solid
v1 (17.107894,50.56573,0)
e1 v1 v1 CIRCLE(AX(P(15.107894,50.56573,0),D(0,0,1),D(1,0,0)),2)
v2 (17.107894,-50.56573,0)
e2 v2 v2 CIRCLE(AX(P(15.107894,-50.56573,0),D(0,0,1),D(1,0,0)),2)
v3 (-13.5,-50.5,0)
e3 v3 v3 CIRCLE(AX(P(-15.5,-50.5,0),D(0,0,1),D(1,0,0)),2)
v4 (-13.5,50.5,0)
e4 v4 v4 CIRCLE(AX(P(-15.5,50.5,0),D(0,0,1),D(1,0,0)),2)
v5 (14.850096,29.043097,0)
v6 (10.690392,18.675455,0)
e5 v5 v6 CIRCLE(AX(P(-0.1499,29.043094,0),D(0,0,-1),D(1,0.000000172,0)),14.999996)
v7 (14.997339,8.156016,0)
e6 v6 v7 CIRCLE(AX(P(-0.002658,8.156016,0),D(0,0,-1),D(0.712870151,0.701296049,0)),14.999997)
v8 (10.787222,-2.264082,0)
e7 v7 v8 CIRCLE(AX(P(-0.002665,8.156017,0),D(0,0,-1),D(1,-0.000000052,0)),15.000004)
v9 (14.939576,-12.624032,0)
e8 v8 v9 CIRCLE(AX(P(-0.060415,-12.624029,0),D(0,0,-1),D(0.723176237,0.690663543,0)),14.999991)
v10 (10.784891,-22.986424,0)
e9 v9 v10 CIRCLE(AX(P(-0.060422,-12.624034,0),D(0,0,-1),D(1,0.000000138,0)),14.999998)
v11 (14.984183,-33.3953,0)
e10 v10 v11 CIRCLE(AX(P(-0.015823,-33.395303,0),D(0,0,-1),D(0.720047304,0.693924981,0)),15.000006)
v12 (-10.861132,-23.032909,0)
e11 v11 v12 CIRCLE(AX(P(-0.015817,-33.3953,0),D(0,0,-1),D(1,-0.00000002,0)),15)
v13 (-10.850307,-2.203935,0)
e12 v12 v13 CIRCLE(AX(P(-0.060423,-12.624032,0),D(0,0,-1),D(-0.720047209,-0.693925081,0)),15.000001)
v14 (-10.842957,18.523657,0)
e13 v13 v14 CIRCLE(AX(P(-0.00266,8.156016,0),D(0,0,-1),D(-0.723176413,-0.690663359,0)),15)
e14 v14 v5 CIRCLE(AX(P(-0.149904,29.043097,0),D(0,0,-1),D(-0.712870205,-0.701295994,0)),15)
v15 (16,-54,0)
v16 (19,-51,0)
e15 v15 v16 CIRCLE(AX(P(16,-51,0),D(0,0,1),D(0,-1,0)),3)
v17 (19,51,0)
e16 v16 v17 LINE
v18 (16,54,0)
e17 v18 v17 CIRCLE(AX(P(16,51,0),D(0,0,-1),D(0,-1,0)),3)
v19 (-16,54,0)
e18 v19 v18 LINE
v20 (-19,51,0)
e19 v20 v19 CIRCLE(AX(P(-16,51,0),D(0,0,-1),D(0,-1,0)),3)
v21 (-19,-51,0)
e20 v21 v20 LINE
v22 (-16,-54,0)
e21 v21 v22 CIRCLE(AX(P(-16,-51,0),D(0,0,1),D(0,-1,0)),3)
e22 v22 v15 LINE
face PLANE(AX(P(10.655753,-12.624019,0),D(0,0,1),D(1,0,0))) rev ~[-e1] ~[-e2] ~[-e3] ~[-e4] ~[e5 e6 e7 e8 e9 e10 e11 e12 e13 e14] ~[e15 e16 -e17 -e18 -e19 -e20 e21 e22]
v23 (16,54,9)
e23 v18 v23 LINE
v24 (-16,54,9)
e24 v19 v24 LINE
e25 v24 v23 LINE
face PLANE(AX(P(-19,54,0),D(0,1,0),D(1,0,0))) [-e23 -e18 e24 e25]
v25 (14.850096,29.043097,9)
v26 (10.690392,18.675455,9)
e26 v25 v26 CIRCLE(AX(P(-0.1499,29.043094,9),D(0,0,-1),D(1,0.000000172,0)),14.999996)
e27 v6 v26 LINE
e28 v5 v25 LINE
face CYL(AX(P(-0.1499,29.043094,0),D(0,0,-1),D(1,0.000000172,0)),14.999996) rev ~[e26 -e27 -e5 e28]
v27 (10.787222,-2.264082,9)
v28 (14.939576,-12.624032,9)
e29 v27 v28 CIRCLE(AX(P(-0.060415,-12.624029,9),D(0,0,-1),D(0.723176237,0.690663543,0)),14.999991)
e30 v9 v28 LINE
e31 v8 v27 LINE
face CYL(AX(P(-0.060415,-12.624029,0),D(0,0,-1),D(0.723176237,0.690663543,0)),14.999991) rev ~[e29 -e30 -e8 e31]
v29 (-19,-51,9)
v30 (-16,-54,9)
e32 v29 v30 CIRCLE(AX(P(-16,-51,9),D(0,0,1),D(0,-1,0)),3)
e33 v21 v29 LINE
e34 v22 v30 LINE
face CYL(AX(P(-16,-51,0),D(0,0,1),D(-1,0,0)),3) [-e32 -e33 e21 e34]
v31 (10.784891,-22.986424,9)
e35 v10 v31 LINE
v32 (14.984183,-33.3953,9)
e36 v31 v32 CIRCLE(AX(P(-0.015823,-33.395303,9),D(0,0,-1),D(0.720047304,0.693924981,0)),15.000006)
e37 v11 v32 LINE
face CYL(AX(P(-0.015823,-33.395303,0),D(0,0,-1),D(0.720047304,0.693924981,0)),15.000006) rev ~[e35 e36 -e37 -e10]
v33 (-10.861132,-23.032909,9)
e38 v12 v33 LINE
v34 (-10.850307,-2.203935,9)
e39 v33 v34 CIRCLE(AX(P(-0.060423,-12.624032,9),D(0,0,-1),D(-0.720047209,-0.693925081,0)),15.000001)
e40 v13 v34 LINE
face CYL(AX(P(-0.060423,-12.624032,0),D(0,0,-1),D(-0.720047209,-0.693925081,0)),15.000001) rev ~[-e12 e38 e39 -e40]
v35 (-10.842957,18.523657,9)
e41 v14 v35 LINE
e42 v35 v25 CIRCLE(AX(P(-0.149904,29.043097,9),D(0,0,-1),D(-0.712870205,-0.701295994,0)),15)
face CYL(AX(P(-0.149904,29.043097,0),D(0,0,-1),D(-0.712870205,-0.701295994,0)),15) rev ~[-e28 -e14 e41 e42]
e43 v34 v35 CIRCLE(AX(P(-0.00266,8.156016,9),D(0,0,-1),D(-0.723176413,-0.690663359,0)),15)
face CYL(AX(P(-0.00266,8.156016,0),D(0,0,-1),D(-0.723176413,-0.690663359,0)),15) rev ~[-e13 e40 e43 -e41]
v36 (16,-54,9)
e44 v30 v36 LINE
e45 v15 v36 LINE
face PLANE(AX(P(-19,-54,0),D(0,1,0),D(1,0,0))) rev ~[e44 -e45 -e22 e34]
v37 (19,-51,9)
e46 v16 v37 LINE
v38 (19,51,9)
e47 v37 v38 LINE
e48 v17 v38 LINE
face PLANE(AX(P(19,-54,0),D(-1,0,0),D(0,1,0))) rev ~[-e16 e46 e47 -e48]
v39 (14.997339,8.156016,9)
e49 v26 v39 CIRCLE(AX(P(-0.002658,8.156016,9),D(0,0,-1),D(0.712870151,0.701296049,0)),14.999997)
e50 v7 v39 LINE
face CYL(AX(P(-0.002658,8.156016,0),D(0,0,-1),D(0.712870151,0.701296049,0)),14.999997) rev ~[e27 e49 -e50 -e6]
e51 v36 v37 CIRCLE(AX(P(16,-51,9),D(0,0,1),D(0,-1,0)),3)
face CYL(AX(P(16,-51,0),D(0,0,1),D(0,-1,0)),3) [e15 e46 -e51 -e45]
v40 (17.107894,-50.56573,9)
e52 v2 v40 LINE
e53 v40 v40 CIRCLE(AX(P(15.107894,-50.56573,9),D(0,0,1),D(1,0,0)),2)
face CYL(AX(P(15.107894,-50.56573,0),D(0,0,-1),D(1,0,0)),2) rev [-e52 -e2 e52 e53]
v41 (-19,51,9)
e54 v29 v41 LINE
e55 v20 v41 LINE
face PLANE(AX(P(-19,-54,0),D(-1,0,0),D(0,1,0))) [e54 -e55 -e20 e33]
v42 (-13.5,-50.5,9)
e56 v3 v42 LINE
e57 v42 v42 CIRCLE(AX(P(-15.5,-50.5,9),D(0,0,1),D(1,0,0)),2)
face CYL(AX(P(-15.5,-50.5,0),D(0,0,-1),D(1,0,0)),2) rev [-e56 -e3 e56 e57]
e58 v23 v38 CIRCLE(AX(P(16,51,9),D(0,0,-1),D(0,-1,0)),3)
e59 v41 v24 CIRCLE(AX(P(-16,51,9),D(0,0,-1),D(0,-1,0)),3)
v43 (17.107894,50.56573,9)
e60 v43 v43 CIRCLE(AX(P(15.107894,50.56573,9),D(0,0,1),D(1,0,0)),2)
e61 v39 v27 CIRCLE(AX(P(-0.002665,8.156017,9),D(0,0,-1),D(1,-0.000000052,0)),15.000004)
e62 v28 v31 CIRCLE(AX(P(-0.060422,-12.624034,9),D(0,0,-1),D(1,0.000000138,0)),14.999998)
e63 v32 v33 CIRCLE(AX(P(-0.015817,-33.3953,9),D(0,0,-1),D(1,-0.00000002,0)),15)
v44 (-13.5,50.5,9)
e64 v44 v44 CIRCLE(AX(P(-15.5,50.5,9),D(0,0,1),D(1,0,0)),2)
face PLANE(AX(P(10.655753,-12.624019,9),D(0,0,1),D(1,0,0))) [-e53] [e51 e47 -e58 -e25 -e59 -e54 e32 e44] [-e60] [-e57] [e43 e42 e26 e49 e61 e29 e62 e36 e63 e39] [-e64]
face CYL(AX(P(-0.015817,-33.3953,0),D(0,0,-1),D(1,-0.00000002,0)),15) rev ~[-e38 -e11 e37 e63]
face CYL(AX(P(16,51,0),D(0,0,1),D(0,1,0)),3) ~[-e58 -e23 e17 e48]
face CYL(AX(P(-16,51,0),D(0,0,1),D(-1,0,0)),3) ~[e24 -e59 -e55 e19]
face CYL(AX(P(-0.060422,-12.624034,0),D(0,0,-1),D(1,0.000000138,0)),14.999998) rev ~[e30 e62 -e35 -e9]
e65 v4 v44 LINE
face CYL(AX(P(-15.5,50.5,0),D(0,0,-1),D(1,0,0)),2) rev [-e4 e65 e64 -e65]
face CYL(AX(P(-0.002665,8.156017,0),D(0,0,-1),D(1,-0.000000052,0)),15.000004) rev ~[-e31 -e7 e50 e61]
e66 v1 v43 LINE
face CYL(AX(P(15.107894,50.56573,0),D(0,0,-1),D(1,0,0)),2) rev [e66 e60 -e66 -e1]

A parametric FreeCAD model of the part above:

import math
import FreeCAD as App
import Part
import Sketcher

V = App.Vector
Q = App.Units.Quantity


def edges_at(feature, points):
    """Names of the edges that pass closest to the given points."""
    edges = feature.Shape.Edges
    near = lambda p: min(range(len(edges)), key=lambda i: edges[i].distToShape(Part.Vertex(*p))[0])
    return sorted({f"Edge{near(p) + 1}" for p in points})


def add_polygon(sketch, points):
    """Adds a closed chain of lines whose ends are joined by coincident constraints."""
    first, n = sketch.GeometryCount, len(points)
    for a, b in zip(points, points[1:] + points[:1]):
        sketch.addGeometry(Part.LineSegment(App.Vector(*a, 0), App.Vector(*b, 0)), False)
    for i in range(n):
        sketch.addConstraint(Sketcher.Constraint("Coincident", first + i, 2, first + (i + 1) % n, 1))

doc = App.newDocument("Part")
body = doc.addObject("PartDesign::Body", "Body")

sketch1 = body.newObject("Sketcher::SketchObject", "Sketch")
sketch1.AttachmentSupport = (doc.getObject("XY_Plane"), [""])
sketch1.MapMode = "FlatFace"
add_polygon(sketch1, [(-19, 54), (-19, -54), (19, -54), (19, 54)])
sketch1.addGeometry(Part.Circle(V(-15.5, -50.5, 0), V(0, 0, 1), 2), False)
sketch1.addGeometry(Part.Circle(V(15.107894, -50.56573, 0), V(0, 0, 1), 2), False)
sketch1.addGeometry(Part.ArcOfCircle(Part.Circle(V(-0.002658, 8.156016, 0), V(0, 0, 1), 14.999997), math.radians(0), math.radians(44.531079)), False)
sketch1.addGeometry(Part.ArcOfCircle(Part.Circle(V(-0.002665, 8.156017, 0), V(0, 0, 1), 15.000004), math.radians(-44.001171), math.radians(-0.000003)), False)
sketch1.addGeometry(Part.ArcOfCircle(Part.Circle(V(-0.060415, -12.624029, 0), V(0, 0, 1), 14.999991), math.radians(-0.000011), math.radians(43.682657)), False)
sketch1.addGeometry(Part.ArcOfCircle(Part.Circle(V(-0.060422, -12.624034, 0), V(0, 0, 1), 14.999998), math.radians(-43.695537), math.radians(0.000008)), False)
sketch1.addGeometry(Part.ArcOfCircle(Part.Circle(V(-0.015823, -33.395303, 0), V(0, 0, 1), 15.000006), math.radians(0.00001), math.radians(43.941614)), False)
sketch1.addGeometry(Part.ArcOfCircle(Part.Circle(V(-0.015817, -33.3953, 0), V(0, 0, 1), 15), math.radians(136.304467), math.radians(359.999999)), False)
sketch1.addGeometry(Part.ArcOfCircle(Part.Circle(V(-0.060423, -12.624032, 0), V(0, 0, 1), 15.000001), math.radians(135.998824), math.radians(223.941622)), False)
sketch1.addGeometry(Part.ArcOfCircle(Part.Circle(V(-0.00266, 8.156016, 0), V(0, 0, 1), 15), math.radians(136.276723), math.radians(223.682642)), False)
sketch1.addGeometry(Part.ArcOfCircle(Part.Circle(V(-0.149904, 29.043097, 0), V(0, 0, 1), 15), math.radians(0), math.radians(224.531074)), False)
sketch1.addGeometry(Part.ArcOfCircle(Part.Circle(V(-0.1499, 29.043094, 0), V(0, 0, 1), 14.999996), math.radians(-43.723284), math.radians(0.00001)), False)
sketch1.addGeometry(Part.Circle(V(-15.5, 50.5, 0), V(0, 0, 1), 2), False)
sketch1.addGeometry(Part.Circle(V(15.107894, 50.56573, 0), V(0, 0, 1), 2), False)
sketch1.addConstraint([
    Sketcher.Constraint("Tangent", 6, 1, 7, 2),
    Sketcher.Constraint("Coincident", 7, 1, 8, 2),
    Sketcher.Constraint("Tangent", 8, 1, 9, 2),
    Sketcher.Constraint("Coincident", 9, 1, 10, 2),
    Sketcher.Constraint("Tangent", 10, 1, 11, 2),
    Sketcher.Constraint("Coincident", 11, 1, 12, 2),
    Sketcher.Constraint("Coincident", 12, 1, 13, 2),
    Sketcher.Constraint("Coincident", 13, 1, 14, 2),
    Sketcher.Constraint("Tangent", 14, 1, 15, 2),
    Sketcher.Constraint("Coincident", 15, 1, 6, 2),
    Sketcher.Constraint("Vertical", 0),
    Sketcher.Constraint("Horizontal", 1),
    Sketcher.Constraint("Vertical", 2),
    Sketcher.Constraint("Horizontal", 3),
    Sketcher.Constraint("Coincident", 12, 3, 8, 3),
    Sketcher.Constraint("Coincident", 13, 3, 6, 3),
    Sketcher.Constraint("Equal", 4, 5),
    Sketcher.Constraint("Equal", 6, 9),
    Sketcher.Constraint("Equal", 7, 10),
    Sketcher.Constraint("Equal", 11, 12),
    Sketcher.Constraint("Equal", 12, 13),
    Sketcher.Constraint("Equal", 13, 14),
    Sketcher.Constraint("Equal", 6, 15),
    Sketcher.Constraint("Equal", 5, 16),
    Sketcher.Constraint("Equal", 16, 17),
    Sketcher.Constraint("Symmetric", 0, 2, 2, 2, -1, 1),
    Sketcher.Constraint("Symmetric", 4, 3, 16, 3, -1),
    Sketcher.Constraint("Symmetric", 5, 3, 17, 3, -1),
    Sketcher.Constraint("Horizontal", 13, 3, 6, 1),
    Sketcher.Constraint("Horizontal", 12, 3, 8, 1),
    Sketcher.Constraint("Horizontal", 11, 3, 10, 1),
    Sketcher.Constraint("Diameter", 4, Q("4 mm")),
    Sketcher.Constraint("Radius", 11, Q("15 mm")),
    Sketcher.Constraint("DistanceX", 1, 1, 1, 2, Q("38 mm")),
    Sketcher.Constraint("DistanceY", 0, 2, 0, 1, Q("108 mm")),
    Sketcher.Constraint("DistanceX", 13, 3, 6, 1, Q("14.999999 mm")),
    Sketcher.Constraint("DistanceX", 12, 3, 8, 1, Q("14.999999 mm")),
    Sketcher.Constraint("DistanceX", 4, 3, -1, 1, Q("15.5 mm")),
    Sketcher.Constraint("DistanceY", 4, 3, -1, 1, Q("50.5 mm")),
    Sketcher.Constraint("Radius", 7, Q("15.000004 mm")),
    Sketcher.Constraint("DistanceY", 11, 3, -1, 1, Q("33.3953 mm")),
    Sketcher.Constraint("DistanceX", 15, 3, -1, 1, Q("0.1499 mm")),
    Sketcher.Constraint("DistanceY", 5, 3, 8, 3, Q("37.941701 mm")),
    Sketcher.Constraint("DistanceX", 9, 3, 10, 3, Q("0.044599 mm")),
    Sketcher.Constraint("DistanceY", 7, 1, 6, 1, Q("10.420098 mm")),
    Sketcher.Constraint("DistanceX", 13, 1, 6, 3, Q("10.840299 mm")),
    Sketcher.Constraint("DistanceY", 5, 3, -1, 1, Q("50.56573 mm")),
    Sketcher.Constraint("DistanceX", 6, 3, -1, 1, Q("0.002658 mm")),
    Sketcher.Constraint("DistanceX", 9, 3, -1, 1, Q("0.060422 mm")),
    Sketcher.Constraint("DistanceX", 7, 3, 5, 3, Q("15.110559 mm")),
    Sketcher.Constraint("DistanceY", 6, 1, 14, 1, Q("20.887081 mm")),
])
pad1 = body.newObject("PartDesign::Pad", "Pad")
pad1.Profile = sketch1
pad1.Length = 9
doc.recompute()

fillet = body.newObject("PartDesign::Fillet", "Fillet")
fillet.Base = (pad1, edges_at(pad1, [
    (19, 54, 4.5),
    (19, -54, 4.5),
    (-19, -54, 4.5),
    (-19, 54, 4.5),
]))
fillet.Radius = 3

doc.recompute()
